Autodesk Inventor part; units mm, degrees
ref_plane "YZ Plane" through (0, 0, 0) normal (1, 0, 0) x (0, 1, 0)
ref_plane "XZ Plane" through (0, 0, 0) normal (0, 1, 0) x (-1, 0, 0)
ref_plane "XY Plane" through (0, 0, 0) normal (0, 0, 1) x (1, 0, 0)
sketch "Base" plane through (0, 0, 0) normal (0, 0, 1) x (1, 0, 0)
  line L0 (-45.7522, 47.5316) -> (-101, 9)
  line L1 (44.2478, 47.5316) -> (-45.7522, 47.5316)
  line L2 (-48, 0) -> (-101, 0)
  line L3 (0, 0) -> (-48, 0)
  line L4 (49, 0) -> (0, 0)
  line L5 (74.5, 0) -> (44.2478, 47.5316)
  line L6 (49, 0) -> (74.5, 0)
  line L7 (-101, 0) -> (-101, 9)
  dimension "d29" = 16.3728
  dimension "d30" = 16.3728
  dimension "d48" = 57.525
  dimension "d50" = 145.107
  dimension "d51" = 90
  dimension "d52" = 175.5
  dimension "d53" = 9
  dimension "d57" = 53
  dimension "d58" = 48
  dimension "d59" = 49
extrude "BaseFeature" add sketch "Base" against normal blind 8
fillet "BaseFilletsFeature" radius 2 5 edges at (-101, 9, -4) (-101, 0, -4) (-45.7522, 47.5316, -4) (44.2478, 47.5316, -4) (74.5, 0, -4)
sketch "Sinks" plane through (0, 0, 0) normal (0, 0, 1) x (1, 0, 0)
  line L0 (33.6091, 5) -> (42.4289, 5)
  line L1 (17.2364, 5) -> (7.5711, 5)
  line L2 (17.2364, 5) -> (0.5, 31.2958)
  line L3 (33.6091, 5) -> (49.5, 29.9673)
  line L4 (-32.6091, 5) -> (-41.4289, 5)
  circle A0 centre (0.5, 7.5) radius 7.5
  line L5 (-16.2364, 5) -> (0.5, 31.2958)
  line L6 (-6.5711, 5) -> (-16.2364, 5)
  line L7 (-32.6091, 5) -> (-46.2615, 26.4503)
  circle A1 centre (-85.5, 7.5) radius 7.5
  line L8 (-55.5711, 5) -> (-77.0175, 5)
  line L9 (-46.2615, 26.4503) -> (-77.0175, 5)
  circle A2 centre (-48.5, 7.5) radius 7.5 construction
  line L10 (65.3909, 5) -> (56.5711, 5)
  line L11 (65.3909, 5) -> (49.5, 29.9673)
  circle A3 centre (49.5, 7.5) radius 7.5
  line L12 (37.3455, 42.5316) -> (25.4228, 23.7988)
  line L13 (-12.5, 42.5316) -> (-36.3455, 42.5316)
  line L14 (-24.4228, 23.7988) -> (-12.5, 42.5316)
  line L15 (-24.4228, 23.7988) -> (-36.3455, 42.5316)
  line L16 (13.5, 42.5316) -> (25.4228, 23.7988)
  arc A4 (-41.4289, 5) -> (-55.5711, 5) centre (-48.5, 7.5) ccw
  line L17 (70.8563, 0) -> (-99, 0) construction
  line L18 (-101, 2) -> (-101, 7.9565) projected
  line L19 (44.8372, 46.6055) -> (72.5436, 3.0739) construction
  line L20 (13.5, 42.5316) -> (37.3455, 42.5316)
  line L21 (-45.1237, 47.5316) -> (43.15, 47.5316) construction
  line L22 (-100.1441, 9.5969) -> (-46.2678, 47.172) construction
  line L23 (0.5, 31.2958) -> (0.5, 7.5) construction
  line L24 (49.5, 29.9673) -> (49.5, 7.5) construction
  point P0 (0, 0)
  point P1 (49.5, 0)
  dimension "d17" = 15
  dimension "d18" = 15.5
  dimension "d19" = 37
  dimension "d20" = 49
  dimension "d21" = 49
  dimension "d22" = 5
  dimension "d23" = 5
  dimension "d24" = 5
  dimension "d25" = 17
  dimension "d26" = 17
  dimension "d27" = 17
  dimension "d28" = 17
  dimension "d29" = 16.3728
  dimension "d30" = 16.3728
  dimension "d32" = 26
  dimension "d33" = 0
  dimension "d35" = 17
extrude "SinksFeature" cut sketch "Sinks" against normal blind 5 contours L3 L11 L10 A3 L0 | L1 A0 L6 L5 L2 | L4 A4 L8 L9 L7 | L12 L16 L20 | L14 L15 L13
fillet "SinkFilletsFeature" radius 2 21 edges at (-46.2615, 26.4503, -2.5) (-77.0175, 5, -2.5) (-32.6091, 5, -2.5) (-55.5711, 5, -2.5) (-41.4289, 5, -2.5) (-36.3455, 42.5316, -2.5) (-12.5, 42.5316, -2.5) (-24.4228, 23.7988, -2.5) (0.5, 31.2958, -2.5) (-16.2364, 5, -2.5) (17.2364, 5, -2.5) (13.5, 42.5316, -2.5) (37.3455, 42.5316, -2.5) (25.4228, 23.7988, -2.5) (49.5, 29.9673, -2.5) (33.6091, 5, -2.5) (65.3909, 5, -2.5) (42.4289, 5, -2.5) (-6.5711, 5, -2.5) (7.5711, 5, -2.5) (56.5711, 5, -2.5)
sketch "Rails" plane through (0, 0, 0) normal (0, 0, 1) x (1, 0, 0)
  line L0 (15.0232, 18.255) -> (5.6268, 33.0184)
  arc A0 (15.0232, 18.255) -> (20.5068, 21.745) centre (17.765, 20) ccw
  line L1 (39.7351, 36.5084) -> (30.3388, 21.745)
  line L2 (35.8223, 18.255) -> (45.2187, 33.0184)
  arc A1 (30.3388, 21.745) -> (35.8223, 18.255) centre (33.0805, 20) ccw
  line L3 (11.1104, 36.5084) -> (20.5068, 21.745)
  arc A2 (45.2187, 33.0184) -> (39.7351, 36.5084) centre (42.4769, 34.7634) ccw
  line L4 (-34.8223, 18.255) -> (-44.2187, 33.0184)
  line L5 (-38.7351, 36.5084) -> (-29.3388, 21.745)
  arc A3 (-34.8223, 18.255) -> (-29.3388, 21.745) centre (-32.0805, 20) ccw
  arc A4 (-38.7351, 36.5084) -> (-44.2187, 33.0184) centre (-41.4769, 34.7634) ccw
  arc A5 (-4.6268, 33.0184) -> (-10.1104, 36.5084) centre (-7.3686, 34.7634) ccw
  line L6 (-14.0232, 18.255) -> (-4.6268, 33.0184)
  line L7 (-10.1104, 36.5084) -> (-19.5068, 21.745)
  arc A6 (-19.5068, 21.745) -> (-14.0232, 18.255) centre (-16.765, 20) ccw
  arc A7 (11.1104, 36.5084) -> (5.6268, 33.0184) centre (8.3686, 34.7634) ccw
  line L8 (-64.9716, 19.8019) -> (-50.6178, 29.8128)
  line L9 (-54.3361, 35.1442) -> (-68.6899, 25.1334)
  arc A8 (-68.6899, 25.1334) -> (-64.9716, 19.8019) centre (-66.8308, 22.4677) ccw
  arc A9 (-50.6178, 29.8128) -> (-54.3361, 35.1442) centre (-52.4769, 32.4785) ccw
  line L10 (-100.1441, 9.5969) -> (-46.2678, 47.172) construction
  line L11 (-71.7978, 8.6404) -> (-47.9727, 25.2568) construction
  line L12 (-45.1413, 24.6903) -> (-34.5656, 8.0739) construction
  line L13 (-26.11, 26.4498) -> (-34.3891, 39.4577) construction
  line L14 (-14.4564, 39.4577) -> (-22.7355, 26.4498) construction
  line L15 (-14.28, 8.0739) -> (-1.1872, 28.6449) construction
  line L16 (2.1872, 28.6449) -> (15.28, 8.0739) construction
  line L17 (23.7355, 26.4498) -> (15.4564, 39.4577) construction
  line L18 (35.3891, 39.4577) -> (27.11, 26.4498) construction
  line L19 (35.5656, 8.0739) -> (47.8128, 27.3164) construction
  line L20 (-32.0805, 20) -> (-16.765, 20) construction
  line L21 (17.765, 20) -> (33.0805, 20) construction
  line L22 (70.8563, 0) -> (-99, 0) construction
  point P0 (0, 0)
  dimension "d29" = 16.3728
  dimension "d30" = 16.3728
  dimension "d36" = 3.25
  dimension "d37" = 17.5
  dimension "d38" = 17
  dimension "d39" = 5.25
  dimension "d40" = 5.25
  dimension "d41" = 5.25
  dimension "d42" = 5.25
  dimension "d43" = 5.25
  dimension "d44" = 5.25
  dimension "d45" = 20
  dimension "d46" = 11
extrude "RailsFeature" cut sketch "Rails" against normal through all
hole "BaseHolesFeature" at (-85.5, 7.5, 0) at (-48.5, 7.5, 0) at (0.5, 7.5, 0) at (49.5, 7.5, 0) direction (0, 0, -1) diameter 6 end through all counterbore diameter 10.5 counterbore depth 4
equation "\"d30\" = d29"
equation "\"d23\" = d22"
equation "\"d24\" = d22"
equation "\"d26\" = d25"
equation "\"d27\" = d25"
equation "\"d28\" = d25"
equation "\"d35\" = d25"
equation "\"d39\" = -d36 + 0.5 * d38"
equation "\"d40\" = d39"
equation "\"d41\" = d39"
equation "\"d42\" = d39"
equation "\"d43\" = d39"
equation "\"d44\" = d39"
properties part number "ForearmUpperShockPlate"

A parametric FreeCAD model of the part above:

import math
import FreeCAD as App
import Part
import Sketcher

V = App.Vector


def edges_at(feature, points):
    """Names of the edges that pass closest to the given points."""
    edges = feature.Shape.Edges
    near = lambda p: min(range(len(edges)), key=lambda i: edges[i].distToShape(Part.Vertex(*p))[0])
    return sorted({f"Edge{near(p) + 1}" for p in points})


def add_polygon(sketch, points):
    """Adds a closed chain of lines whose ends are joined by coincident constraints."""
    first, n = sketch.GeometryCount, len(points)
    for a, b in zip(points, points[1:] + points[:1]):
        sketch.addGeometry(Part.LineSegment(App.Vector(*a, 0), App.Vector(*b, 0)), False)
    for i in range(n):
        sketch.addConstraint(Sketcher.Constraint("Coincident", first + i, 2, first + (i + 1) % n, 1))

doc = App.newDocument("Part")
body = doc.addObject("PartDesign::Body", "Body")

sketch1 = body.newObject("Sketcher::SketchObject", "Sketch")
sketch1.AttachmentSupport = (doc.getObject("XY_Plane"), [""])
sketch1.MapMode = "FlatFace"
add_polygon(sketch1, [(44, 48), (-46, 48), (-101, 9), (-101, 0), (74, 0)])
sketch1.addConstraint(Sketcher.Constraint("Horizontal", 0))
sketch1.addConstraint(Sketcher.Constraint("Vertical", 2))
sketch1.addConstraint(Sketcher.Constraint("Horizontal", 3))
sketch1.addConstraint(Sketcher.Constraint("PointOnObject", 2, 2, -1))
sketch1.addConstraint(Sketcher.Constraint("DistanceX", 0, 2, 0, 1, 90.0))
sketch1.addConstraint(Sketcher.Constraint("DistanceY", 2, 2, 2, 1, 9.0))
sketch1.addConstraint(Sketcher.Constraint("DistanceX", 3, 1, 3, 2, 175.5))
sketch1.addConstraint(Sketcher.Constraint("DistanceX", 1, 2, -1, 1, 101.0))
sketch1.addConstraint(Sketcher.Constraint("Distance", 1, 67.3573))
sketch1.addConstraint(Sketcher.Constraint("Distance", 4, 56.3422))
pad1 = body.newObject("PartDesign::Pad", "Pad")
pad1.Profile = sketch1
pad1.Length = 8
pad1.Reversed = True
doc.recompute()

fillet = body.newObject("PartDesign::Fillet", "Fillet")
fillet.Base = (pad1, edges_at(pad1, [
    (-101, 9, -4),
    (-101, 0, -4),
    (-45.752, 47.532, -4),
    (44.248, 47.532, -4),
    (74.5, 0, -4),
]))
fillet.Radius = 2

sketch2 = body.newObject("Sketcher::SketchObject", "Sketch001")
sketch2.AttachmentSupport = (doc.getObject("XY_Plane"), [""])
sketch2.MapMode = "FlatFace"
sketch2.addGeometry(Part.LineSegment(V(50, 30, 0), V(34, 5, 0)), False)
sketch2.addGeometry(Part.LineSegment(V(34, 5, 0), V(42, 5, 0)), False)
sketch2.addGeometry(Part.ArcOfCircle(Part.Circle(V(50, 8, 0), V(0, 0, 1), 8), math.radians(-19), math.radians(199)), False)
sketch2.addGeometry(Part.LineSegment(V(57, 5, 0), V(65, 5, 0)), False)
sketch2.addGeometry(Part.LineSegment(V(65, 5, 0), V(50, 30, 0)), False)
sketch2.addGeometry(Part.LineSegment(V(8, 5, 0), V(17, 5, 0)), False)
sketch2.addGeometry(Part.LineSegment(V(17, 5, 0), V(0, 31, 0)), False)
sketch2.addGeometry(Part.LineSegment(V(0, 31, 0), V(-16, 5, 0)), False)
sketch2.addGeometry(Part.LineSegment(V(-16, 5, 0), V(-7, 5, 0)), False)
sketch2.addGeometry(Part.ArcOfCircle(Part.Circle(V(0, 8, 0), V(0, 0, 1), 8), math.radians(-19), math.radians(199)), False)
sketch2.addGeometry(Part.LineSegment(V(-41, 5, 0), V(-33, 5, 0)), False)
sketch2.addGeometry(Part.LineSegment(V(-33, 5, 0), V(-46, 26, 0)), False)
sketch2.addGeometry(Part.LineSegment(V(-46, 26, 0), V(-77, 5, 0)), False)
sketch2.addGeometry(Part.LineSegment(V(-77, 5, 0), V(-56, 5, 0)), False)
sketch2.addGeometry(Part.ArcOfCircle(Part.Circle(V(-48, 8, 0), V(0, 0, 1), 8), math.radians(-19), math.radians(199)), False)
add_polygon(sketch2, [(25, 24), (37, 43), (14, 43)])
add_polygon(sketch2, [(-24, 24), (-12, 43), (-36, 43)])
sketch2.addConstraint(Sketcher.Constraint("Coincident", 0, 2, 1, 1))
sketch2.addConstraint(Sketcher.Constraint("Coincident", 1, 2, 2, 2))
sketch2.addConstraint(Sketcher.Constraint("Coincident", 2, 1, 3, 1))
sketch2.addConstraint(Sketcher.Constraint("Coincident", 3, 2, 4, 1))
sketch2.addConstraint(Sketcher.Constraint("Coincident", 4, 2, 0, 1))
sketch2.addConstraint(Sketcher.Constraint("Coincident", 5, 2, 6, 1))
sketch2.addConstraint(Sketcher.Constraint("Coincident", 6, 2, 7, 1))
sketch2.addConstraint(Sketcher.Constraint("Coincident", 7, 2, 8, 1))
sketch2.addConstraint(Sketcher.Constraint("Coincident", 8, 2, 9, 2))
sketch2.addConstraint(Sketcher.Constraint("Coincident", 9, 1, 5, 1))
sketch2.addConstraint(Sketcher.Constraint("Coincident", 10, 2, 11, 1))
sketch2.addConstraint(Sketcher.Constraint("Coincident", 11, 2, 12, 1))
sketch2.addConstraint(Sketcher.Constraint("Coincident", 12, 2, 13, 1))
sketch2.addConstraint(Sketcher.Constraint("Coincident", 13, 2, 14, 2))
sketch2.addConstraint(Sketcher.Constraint("Coincident", 14, 1, 10, 1))
sketch2.addConstraint(Sketcher.Constraint("Horizontal", 1))
sketch2.addConstraint(Sketcher.Constraint("Horizontal", 3))
sketch2.addConstraint(Sketcher.Constraint("Horizontal", 5))
sketch2.addConstraint(Sketcher.Constraint("Horizontal", 8))
sketch2.addConstraint(Sketcher.Constraint("Horizontal", 10))
sketch2.addConstraint(Sketcher.Constraint("Horizontal", 13))
sketch2.addConstraint(Sketcher.Constraint("Horizontal", 16))
sketch2.addConstraint(Sketcher.Constraint("Horizontal", 19))
sketch2.addConstraint(Sketcher.Constraint("Equal", 2, 9))
sketch2.addConstraint(Sketcher.Constraint("Equal", 9, 14))
sketch2.addConstraint(Sketcher.Constraint("Parallel", 4, 6))
sketch2.addConstraint(Sketcher.Constraint("Parallel", 0, 7))
sketch2.addConstraint(Sketcher.Constraint("Parallel", 6, 11))
sketch2.addConstraint(Sketcher.Constraint("Parallel", 7, 15))
sketch2.addConstraint(Sketcher.Constraint("Parallel", 11, 17))
sketch2.addConstraint(Sketcher.Constraint("Parallel", 15, 18))
sketch2.addConstraint(Sketcher.Constraint("Parallel", 17, 20))
sketch2.addConstraint(Sketcher.Constraint("Horizontal", 2, 3, 9, 3))
sketch2.addConstraint(Sketcher.Constraint("Horizontal", 9, 3, 14, 3))
sketch2.addConstraint(Sketcher.Constraint("Horizontal", 1, 2, 2, 1))
sketch2.addConstraint(Sketcher.Constraint("Horizontal", 3, 2, 5, 2))
sketch2.addConstraint(Sketcher.Constraint("Horizontal", 5, 2, 7, 2))
sketch2.addConstraint(Sketcher.Constraint("Horizontal", 9, 1, 10, 2))
sketch2.addConstraint(Sketcher.Constraint("Horizontal", 10, 2, 12, 2))
sketch2.addConstraint(Sketcher.Constraint("Horizontal", 16, 2, 18, 2))
sketch2.addConstraint(Sketcher.Constraint("Horizontal", 17, 2, 20, 2))
sketch2.addConstraint(Sketcher.Constraint("Vertical", 2, 3, 4, 2))
sketch2.addConstraint(Sketcher.Constraint("Vertical", 9, 3, 6, 2))
sketch2.addConstraint(Sketcher.Constraint("Equal", 1, 3))
sketch2.addConstraint(Sketcher.Constraint("Equal", 3, 10))
sketch2.addConstraint(Sketcher.Constraint("Radius", 2, 7.5))
sketch2.addConstraint(Sketcher.Constraint("DistanceY", -1, 1, 0, 2, 5.0))
sketch2.addConstraint(Sketcher.Constraint("DistanceX", 9, 3, 2, 3, 49.0))
sketch2.addConstraint(Sketcher.Constraint("DistanceX", 14, 3, 9, 3, 49.0))
sketch2.addConstraint(Sketcher.Constraint("DistanceX", 18, 2, 16, 2, 26.0))
sketch2.addConstraint(Sketcher.Constraint("DistanceX", 6, 2, 16, 2, 13.0))
sketch2.addConstraint(Sketcher.Constraint("DistanceX", -1, 1, 2, 3, 49.5))
sketch2.addConstraint(Sketcher.Constraint("DistanceY", -1, 1, 2, 3, 7.5))
sketch2.addConstraint(Sketcher.Constraint("DistanceX", 5, 2, 0, 2, 16.3727))
sketch2.addConstraint(Sketcher.Constraint("Distance", 6, 31.17))
sketch2.addConstraint(Sketcher.Constraint("DistanceX", 1, 1, 1, 2, 8.8198))
sketch2.addConstraint(Sketcher.Constraint("DistanceX", 13, 1, 13, 2, 21.4464))
sketch2.addConstraint(Sketcher.Constraint("DistanceX", 16, 2, 16, 1, 23.8455))
sketch2.addConstraint(Sketcher.Constraint("DistanceX", 11, 2, 7, 2, 30.025))
sketch2.addConstraint(Sketcher.Constraint("DistanceY", -1, 1, 15, 2, 42.5316))
pocket1 = body.newObject("PartDesign::Pocket", "Pocket")
pocket1.Profile = sketch2
pocket1.Length = 5
doc.recompute()

fillet2 = body.newObject("PartDesign::Fillet", "Fillet001")
fillet2.Base = (pocket1, edges_at(pocket1, [
    (-46.261, 26.45, -2.5),
    (-77.017, 5, -2.5),
    (-32.609, 5, -2.5),
    (-55.571, 5, -2.5),
    (-41.429, 5, -2.5),
    (-36.346, 42.532, -2.5),
    (-12.5, 42.532, -2.5),
    (-24.423, 23.799, -2.5),
    (0.5, 31.296, -2.5),
    (-16.236, 5, -2.5),
    (17.236, 5, -2.5),
    (13.5, 42.532, -2.5),
    (37.346, 42.532, -2.5),
    (25.423, 23.799, -2.5),
    (49.5, 29.967, -2.5),
    (33.609, 5, -2.5),
    (65.391, 5, -2.5),
    (42.429, 5, -2.5),
    (-6.571, 5, -2.5),
    (7.571, 5, -2.5),
    (56.571, 5, -2.5),
]))
fillet2.Radius = 2

sketch3 = body.newObject("Sketcher::SketchObject", "Sketch002")
sketch3.AttachmentSupport = (doc.getObject("XY_Plane"), [""])
sketch3.MapMode = "FlatFace"
sketch3.addGeometry(Part.LineSegment(V(5.6, 33, 0), V(15, 18.3, 0)), False)
sketch3.addGeometry(Part.ArcOfCircle(Part.Circle(V(17.8, 20, 0), V(0, 0, 1), 3.2), math.radians(-148), math.radians(32)), False)
sketch3.addGeometry(Part.LineSegment(V(20.5, 21.7, 0), V(11.1, 36.5, 0)), False)
sketch3.addGeometry(Part.ArcOfCircle(Part.Circle(V(8.4, 34.8, 0), V(0, 0, 1), 3.2), math.radians(32), math.radians(212)), False)
sketch3.addGeometry(Part.ArcOfCircle(Part.Circle(V(42.5, 34.8, 0), V(0, 0, 1), 3.2), math.radians(-32), math.radians(148)), False)
sketch3.addGeometry(Part.LineSegment(V(39.7, 36.5, 0), V(30.3, 21.7, 0)), False)
sketch3.addGeometry(Part.ArcOfCircle(Part.Circle(V(33.1, 20, 0), V(0, 0, 1), 3.2), math.radians(148), math.radians(328)), False)
sketch3.addGeometry(Part.LineSegment(V(35.8, 18.3, 0), V(45.2, 33, 0)), False)
sketch3.addGeometry(Part.LineSegment(V(-44.2, 33, 0), V(-34.8, 18.3, 0)), False)
sketch3.addGeometry(Part.ArcOfCircle(Part.Circle(V(-32.1, 20, 0), V(0, 0, 1), 3.2), math.radians(-148), math.radians(32)), False)
sketch3.addGeometry(Part.LineSegment(V(-29.3, 21.7, 0), V(-38.7, 36.5, 0)), False)
sketch3.addGeometry(Part.ArcOfCircle(Part.Circle(V(-41.5, 34.8, 0), V(0, 0, 1), 3.2), math.radians(32), math.radians(212)), False)
sketch3.addGeometry(Part.LineSegment(V(-14, 18.3, 0), V(-4.6, 33, 0)), False)
sketch3.addGeometry(Part.ArcOfCircle(Part.Circle(V(-7.4, 34.8, 0), V(0, 0, 1), 3.2), math.radians(-32), math.radians(148)), False)
sketch3.addGeometry(Part.LineSegment(V(-10.1, 36.5, 0), V(-19.5, 21.7, 0)), False)
sketch3.addGeometry(Part.ArcOfCircle(Part.Circle(V(-16.8, 20, 0), V(0, 0, 1), 3.2), math.radians(148), math.radians(328)), False)
sketch3.addGeometry(Part.ArcOfCircle(Part.Circle(V(-66.8, 22.5, 0), V(0, 0, 1), 3.2), math.radians(125), math.radians(305)), False)
sketch3.addGeometry(Part.LineSegment(V(-65, 19.8, 0), V(-50.6, 29.8, 0)), False)
sketch3.addGeometry(Part.ArcOfCircle(Part.Circle(V(-52.5, 32.5, 0), V(0, 0, 1), 3.2), math.radians(-55), math.radians(125)), False)
sketch3.addGeometry(Part.LineSegment(V(-54.3, 35.1, 0), V(-68.7, 25.1, 0)), False)
sketch3.addConstraint(Sketcher.Constraint("Tangent", 0, 2, 1, 1))
sketch3.addConstraint(Sketcher.Constraint("Tangent", 1, 2, 2, 1))
sketch3.addConstraint(Sketcher.Constraint("Tangent", 2, 2, 3, 1))
sketch3.addConstraint(Sketcher.Constraint("Tangent", 3, 2, 0, 1))
sketch3.addConstraint(Sketcher.Constraint("Tangent", 4, 2, 5, 1))
sketch3.addConstraint(Sketcher.Constraint("Tangent", 5, 2, 6, 1))
sketch3.addConstraint(Sketcher.Constraint("Tangent", 6, 2, 7, 1))
sketch3.addConstraint(Sketcher.Constraint("Tangent", 7, 2, 4, 1))
sketch3.addConstraint(Sketcher.Constraint("Tangent", 8, 2, 9, 1))
sketch3.addConstraint(Sketcher.Constraint("Tangent", 9, 2, 10, 1))
sketch3.addConstraint(Sketcher.Constraint("Tangent", 10, 2, 11, 1))
sketch3.addConstraint(Sketcher.Constraint("Tangent", 11, 2, 8, 1))
sketch3.addConstraint(Sketcher.Constraint("Tangent", 12, 2, 13, 1))
sketch3.addConstraint(Sketcher.Constraint("Tangent", 13, 2, 14, 1))
sketch3.addConstraint(Sketcher.Constraint("Tangent", 14, 2, 15, 1))
sketch3.addConstraint(Sketcher.Constraint("Tangent", 15, 2, 12, 1))
sketch3.addConstraint(Sketcher.Constraint("Tangent", 16, 2, 17, 1))
sketch3.addConstraint(Sketcher.Constraint("Tangent", 17, 2, 18, 1))
sketch3.addConstraint(Sketcher.Constraint("Tangent", 18, 2, 19, 1))
sketch3.addConstraint(Sketcher.Constraint("Tangent", 19, 2, 16, 1))
sketch3.addConstraint(Sketcher.Constraint("Equal", 1, 3))
sketch3.addConstraint(Sketcher.Constraint("Equal", 3, 4))
sketch3.addConstraint(Sketcher.Constraint("Equal", 4, 6))
sketch3.addConstraint(Sketcher.Constraint("Equal", 6, 9))
sketch3.addConstraint(Sketcher.Constraint("Equal", 9, 11))
sketch3.addConstraint(Sketcher.Constraint("Equal", 11, 13))
sketch3.addConstraint(Sketcher.Constraint("Equal", 13, 15))
sketch3.addConstraint(Sketcher.Constraint("Equal", 15, 16))
sketch3.addConstraint(Sketcher.Constraint("Equal", 16, 18))
sketch3.addConstraint(Sketcher.Constraint("Parallel", 2, 8))
sketch3.addConstraint(Sketcher.Constraint("Parallel", 7, 12))
sketch3.addConstraint(Sketcher.Constraint("Horizontal", 3, 3, 4, 3))
sketch3.addConstraint(Sketcher.Constraint("Horizontal", 1, 3, 6, 3))
sketch3.addConstraint(Sketcher.Constraint("Horizontal", 6, 3, 9, 3))
sketch3.addConstraint(Sketcher.Constraint("Horizontal", 4, 3, 11, 3))
sketch3.addConstraint(Sketcher.Constraint("Horizontal", 11, 3, 13, 3))
sketch3.addConstraint(Sketcher.Constraint("Horizontal", 9, 3, 15, 3))
sketch3.addConstraint(Sketcher.Constraint("Horizontal", 2, 2, 4, 2))
sketch3.addConstraint(Sketcher.Constraint("Equal", 14, 17))
sketch3.addConstraint(Sketcher.Constraint("Radius", 1, 3.25))
sketch3.addConstraint(Sketcher.Constraint("DistanceY", -1, 1, 1, 3, 20.0))
sketch3.addConstraint(Sketcher.Constraint("DistanceX", 18, 3, 11, 3, 11.0))
sketch3.addConstraint(Sketcher.Constraint("Distance", 0, 17.5))
sketch3.addConstraint(Sketcher.Constraint("DistanceX", 19, 2, -1, 1, 68.69))
sketch3.addConstraint(Sketcher.Constraint("DistanceX", 15, 3, 1, 3, 34.53))
sketch3.addConstraint(Sketcher.Constraint("DistanceY", 0, 2, 1, 2, 3.49))
sketch3.addConstraint(Sketcher.Constraint("DistanceX", 1, 2, 4, 3, 21.97))
sketch3.addConstraint(Sketcher.Constraint("DistanceY", 18, 3, 10, 2, 4.03))
sketch3.addConstraint(Sketcher.Constraint("DistanceX", -1, 1, 1, 3, 17.765))
sketch3.addConstraint(Sketcher.Constraint("DistanceX", 11, 3, -1, 1, 41.477))
pocket2 = body.newObject("PartDesign::Pocket", "Pocket001")
pocket2.Profile = sketch3
pocket2.Type = "ThroughAll"

sketch4 = body.newObject("Sketcher::SketchObject", "Sketch003")
sketch4.AttachmentSupport = (doc.getObject("XY_Plane"), [""])
sketch4.MapMode = "FlatFace"
sketch4.addGeometry(Part.Circle(V(-85.5, 7.5, 0), V(0, 0, 1), 3), False)
sketch4.addGeometry(Part.Circle(V(-48.5, 7.5, 0), V(0, 0, 1), 3), False)
sketch4.addGeometry(Part.Circle(V(0.5, 7.5, 0), V(0, 0, 1), 3), False)
sketch4.addGeometry(Part.Circle(V(49.5, 7.5, 0), V(0, 0, 1), 3), False)
sketch4.addConstraint(Sketcher.Constraint("Equal", 0, 1))
sketch4.addConstraint(Sketcher.Constraint("Equal", 1, 2))
sketch4.addConstraint(Sketcher.Constraint("Equal", 2, 3))
sketch4.addConstraint(Sketcher.Constraint("Horizontal", 0, 3, 1, 3))
sketch4.addConstraint(Sketcher.Constraint("Horizontal", 1, 3, 2, 3))
sketch4.addConstraint(Sketcher.Constraint("Horizontal", 2, 3, 3, 3))
sketch4.addConstraint(Sketcher.Constraint("Diameter", 0, 6.0))
sketch4.addConstraint(Sketcher.Constraint("DistanceX", 0, 3, 1, 3, 37.0))
sketch4.addConstraint(Sketcher.Constraint("DistanceX", 1, 3, 2, 3, 49.0))
sketch4.addConstraint(Sketcher.Constraint("DistanceX", 2, 3, 3, 3, 49.0))
sketch4.addConstraint(Sketcher.Constraint("DistanceX", 0, 3, -1, 1, 85.5))
sketch4.addConstraint(Sketcher.Constraint("DistanceY", -1, 1, 0, 3, 7.5))
doc.recompute()
hole = body.newObject("PartDesign::Hole", "Hole")
hole.Profile = sketch4
hole.ThreadType = "None"
hole.Diameter = 6
hole.DepthType = "ThroughAll"
hole.HoleCutType = "Counterbore"
hole.HoleCutDiameter = 10.5
hole.HoleCutDepth = 4

doc.recompute()
